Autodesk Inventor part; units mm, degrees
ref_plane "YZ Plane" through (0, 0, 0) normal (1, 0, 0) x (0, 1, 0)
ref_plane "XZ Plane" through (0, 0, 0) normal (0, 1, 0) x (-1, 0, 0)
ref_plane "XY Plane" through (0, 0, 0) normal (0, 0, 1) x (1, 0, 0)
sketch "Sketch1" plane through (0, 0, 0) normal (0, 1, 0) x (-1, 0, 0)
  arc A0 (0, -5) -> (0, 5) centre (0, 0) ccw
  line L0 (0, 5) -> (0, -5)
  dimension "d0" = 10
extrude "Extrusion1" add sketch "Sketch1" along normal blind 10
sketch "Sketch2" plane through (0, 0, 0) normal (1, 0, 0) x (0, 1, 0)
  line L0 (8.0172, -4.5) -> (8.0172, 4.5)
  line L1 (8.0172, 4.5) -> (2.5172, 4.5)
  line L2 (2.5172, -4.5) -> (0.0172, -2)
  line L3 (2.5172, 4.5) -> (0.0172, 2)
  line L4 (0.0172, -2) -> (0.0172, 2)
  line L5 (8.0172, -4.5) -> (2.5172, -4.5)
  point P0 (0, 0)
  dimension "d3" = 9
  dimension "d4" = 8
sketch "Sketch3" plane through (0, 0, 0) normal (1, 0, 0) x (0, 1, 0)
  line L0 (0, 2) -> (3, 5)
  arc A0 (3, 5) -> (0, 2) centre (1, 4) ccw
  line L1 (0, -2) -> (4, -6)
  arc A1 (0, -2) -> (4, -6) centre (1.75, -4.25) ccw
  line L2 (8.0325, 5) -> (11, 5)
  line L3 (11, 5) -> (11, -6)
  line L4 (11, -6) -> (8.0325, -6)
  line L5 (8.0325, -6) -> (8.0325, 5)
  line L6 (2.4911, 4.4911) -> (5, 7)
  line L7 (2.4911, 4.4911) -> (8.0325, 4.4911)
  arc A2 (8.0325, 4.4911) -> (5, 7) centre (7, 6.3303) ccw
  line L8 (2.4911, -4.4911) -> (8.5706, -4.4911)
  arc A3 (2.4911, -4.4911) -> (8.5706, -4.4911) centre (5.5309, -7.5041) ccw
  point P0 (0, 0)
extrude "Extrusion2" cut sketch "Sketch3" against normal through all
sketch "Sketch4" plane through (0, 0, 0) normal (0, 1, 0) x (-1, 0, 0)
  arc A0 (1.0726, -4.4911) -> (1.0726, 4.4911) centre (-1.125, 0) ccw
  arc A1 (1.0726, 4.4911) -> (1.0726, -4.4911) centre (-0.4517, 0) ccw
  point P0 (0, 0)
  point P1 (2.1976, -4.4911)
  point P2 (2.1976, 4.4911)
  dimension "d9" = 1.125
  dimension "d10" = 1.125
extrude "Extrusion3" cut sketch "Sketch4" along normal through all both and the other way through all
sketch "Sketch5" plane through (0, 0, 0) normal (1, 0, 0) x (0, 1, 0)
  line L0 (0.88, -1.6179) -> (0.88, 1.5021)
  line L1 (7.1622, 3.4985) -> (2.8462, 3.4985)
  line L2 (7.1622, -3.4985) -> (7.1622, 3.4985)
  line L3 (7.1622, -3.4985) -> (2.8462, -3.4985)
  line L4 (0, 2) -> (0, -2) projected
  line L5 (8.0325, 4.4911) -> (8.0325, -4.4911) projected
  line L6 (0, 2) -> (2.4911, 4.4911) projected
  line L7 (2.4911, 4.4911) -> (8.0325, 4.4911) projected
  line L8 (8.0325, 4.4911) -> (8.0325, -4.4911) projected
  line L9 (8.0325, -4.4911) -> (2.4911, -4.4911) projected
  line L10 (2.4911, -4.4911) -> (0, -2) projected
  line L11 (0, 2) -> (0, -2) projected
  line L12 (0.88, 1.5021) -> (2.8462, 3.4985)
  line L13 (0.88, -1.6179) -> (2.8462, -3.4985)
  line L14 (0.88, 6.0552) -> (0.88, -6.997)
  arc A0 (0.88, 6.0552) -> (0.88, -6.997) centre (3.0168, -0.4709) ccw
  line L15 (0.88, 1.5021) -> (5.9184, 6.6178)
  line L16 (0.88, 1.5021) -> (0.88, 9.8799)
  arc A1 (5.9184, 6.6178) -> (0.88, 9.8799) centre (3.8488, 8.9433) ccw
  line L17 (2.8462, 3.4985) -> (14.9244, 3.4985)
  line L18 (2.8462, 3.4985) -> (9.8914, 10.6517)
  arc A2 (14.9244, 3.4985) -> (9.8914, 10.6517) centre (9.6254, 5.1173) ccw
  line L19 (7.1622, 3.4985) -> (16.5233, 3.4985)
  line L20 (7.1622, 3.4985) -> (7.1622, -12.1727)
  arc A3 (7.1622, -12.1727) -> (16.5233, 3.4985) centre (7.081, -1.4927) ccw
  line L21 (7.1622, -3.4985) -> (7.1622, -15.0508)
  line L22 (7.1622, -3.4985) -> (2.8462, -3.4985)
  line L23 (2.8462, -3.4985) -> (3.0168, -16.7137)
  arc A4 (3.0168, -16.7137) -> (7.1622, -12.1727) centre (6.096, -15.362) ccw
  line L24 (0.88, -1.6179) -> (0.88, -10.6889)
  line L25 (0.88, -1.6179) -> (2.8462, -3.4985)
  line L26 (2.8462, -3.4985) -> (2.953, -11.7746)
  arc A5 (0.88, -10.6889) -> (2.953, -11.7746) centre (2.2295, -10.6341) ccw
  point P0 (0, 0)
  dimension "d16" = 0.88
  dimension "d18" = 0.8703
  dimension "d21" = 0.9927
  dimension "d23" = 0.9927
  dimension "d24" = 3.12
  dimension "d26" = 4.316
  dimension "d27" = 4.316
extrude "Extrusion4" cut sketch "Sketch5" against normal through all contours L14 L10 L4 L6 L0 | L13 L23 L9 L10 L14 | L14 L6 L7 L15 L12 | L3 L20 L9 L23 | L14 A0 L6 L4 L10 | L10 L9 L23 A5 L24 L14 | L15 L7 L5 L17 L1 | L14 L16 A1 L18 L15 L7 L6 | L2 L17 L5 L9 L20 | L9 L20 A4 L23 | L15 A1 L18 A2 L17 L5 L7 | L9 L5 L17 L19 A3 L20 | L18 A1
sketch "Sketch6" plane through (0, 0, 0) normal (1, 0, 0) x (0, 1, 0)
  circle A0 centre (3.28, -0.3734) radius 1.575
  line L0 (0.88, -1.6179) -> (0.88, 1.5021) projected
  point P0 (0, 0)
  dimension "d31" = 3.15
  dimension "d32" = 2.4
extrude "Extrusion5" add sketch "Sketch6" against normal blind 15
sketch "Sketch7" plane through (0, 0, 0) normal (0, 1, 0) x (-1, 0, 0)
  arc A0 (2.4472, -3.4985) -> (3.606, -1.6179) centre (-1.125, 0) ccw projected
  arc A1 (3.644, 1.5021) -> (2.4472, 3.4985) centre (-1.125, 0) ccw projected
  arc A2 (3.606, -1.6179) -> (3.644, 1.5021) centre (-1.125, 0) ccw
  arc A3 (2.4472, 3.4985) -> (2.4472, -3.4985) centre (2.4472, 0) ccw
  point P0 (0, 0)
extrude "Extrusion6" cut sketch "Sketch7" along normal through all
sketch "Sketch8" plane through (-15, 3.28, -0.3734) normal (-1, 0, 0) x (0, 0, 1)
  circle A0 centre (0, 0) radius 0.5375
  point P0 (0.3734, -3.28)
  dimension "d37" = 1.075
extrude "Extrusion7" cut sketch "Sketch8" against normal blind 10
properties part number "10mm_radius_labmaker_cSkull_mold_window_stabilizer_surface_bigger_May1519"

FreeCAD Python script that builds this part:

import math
import FreeCAD as App
import Part
import Sketcher

V = App.Vector
Q = App.Units.Quantity


def add_polygon(sketch, points):
    """Adds a closed chain of lines whose ends are joined by coincident constraints."""
    first, n = sketch.GeometryCount, len(points)
    for a, b in zip(points, points[1:] + points[:1]):
        sketch.addGeometry(Part.LineSegment(App.Vector(*a, 0), App.Vector(*b, 0)), False)
    for i in range(n):
        sketch.addConstraint(Sketcher.Constraint("Coincident", first + i, 2, first + (i + 1) % n, 1))

doc = App.newDocument("Part")
params = doc.addObject("Spreadsheet::Sheet", "Params")
for row, (alias, value) in enumerate([
    ("sketch1_radius", "5 mm"),
    ("pad1_length", "10 mm"),
    ("sketch2_height", "11 mm"),
    ("sketch2_radius", "4.28 mm"),
    ("sketch3_radius", "5 mm"),
    ("sketch4_height", "3.12 mm"),
    ("sketch5_diameter", "3.15 mm"),
    ("pad2_length", "15 mm"),
    ("sketch6_radius", "5 mm"),
    ("pocket5_length", "10 mm"),
], start=1):
    params.set(f"A{row}", alias)
    params.set(f"B{row}", "=" + value)
    params.setAlias(f"B{row}", alias)

body = doc.addObject("PartDesign::Body", "Body")

sketch1 = body.newObject("Sketcher::SketchObject", "Sketch")
sketch1.AttachmentSupport = (doc.getObject("XZ_Plane"), [""])
sketch1.MapMode = "FlatFace"
sketch1.addGeometry(Part.LineSegment(V(0, 5, 0), V(0, -5, 0)), False)
sketch1.addGeometry(Part.ArcOfCircle(Part.Circle(V(0, 0, 0), V(0, 0, 1), 5), math.radians(90), math.radians(270)), False)
sketch1.addConstraint(Sketcher.Constraint("Coincident", 0, 1, 1, 1))
sketch1.addConstraint(Sketcher.Constraint("Coincident", 1, 2, 0, 2))
sketch1.addConstraint(Sketcher.Constraint("Vertical", 0))
sketch1.addConstraint(Sketcher.Constraint("Coincident", 1, 3, -1, 1))
sketch1.addConstraint(Sketcher.Constraint("PointOnObject", 0, 1, -2))
sketch1.addConstraint(Sketcher.Constraint("Radius", 1, Q("5 mm")))
sketch1.setExpression("Constraints[5]", "Params.sketch1_radius")
pad1 = body.newObject("PartDesign::Pad", "Pad")
pad1.Profile = sketch1
pad1.setExpression("Length", "Params.pad1_length")
pad1.Reversed = True

sketch2 = body.newObject("Sketcher::SketchObject", "Sketch001")
sketch2.AttachmentSupport = (doc.getObject("YZ_Plane"), [""])
sketch2.MapMode = "FlatFace"
sketch2.addGeometry(Part.ArcOfCircle(Part.Circle(V(1, 4, 0), V(0, 0, 1), 2.2), math.radians(27), math.radians(243)), False)
sketch2.addGeometry(Part.LineSegment(V(0, 2, 0), V(2.5, 4.5, 0)), False)
sketch2.addGeometry(Part.LineSegment(V(2.5, 4.5, 0), V(8, 4.5, 0)), False)
sketch2.addGeometry(Part.LineSegment(V(8, 4.5, 0), V(8, -4.5, 0)), False)
sketch2.addGeometry(Part.LineSegment(V(8, -4.5, 0), V(2.5, -4.5, 0)), False)
sketch2.addGeometry(Part.LineSegment(V(2.5, -4.5, 0), V(0, -2, 0)), False)
sketch2.addGeometry(Part.ArcOfCircle(Part.Circle(V(1.8, -4.2, 0), V(0, 0, 1), 2.9), math.radians(128), math.radians(260)), False)
sketch2.addGeometry(Part.ArcOfCircle(Part.Circle(V(5.5, -7.5, 0), V(0, 0, 1), 4.3), math.radians(174), math.radians(381)), False)
sketch2.addGeometry(Part.LineSegment(V(9.5, -6, 0), V(11, -6, 0)), False)
sketch2.addGeometry(Part.LineSegment(V(11, -6, 0), V(11, 5, 0)), False)
sketch2.addGeometry(Part.LineSegment(V(11, 5, 0), V(8.6, 5, 0)), False)
sketch2.addGeometry(Part.ArcOfCircle(Part.Circle(V(7, 6.3, 0), V(0, 0, 1), 2.1), math.radians(-39), math.radians(161)), False)
sketch2.addGeometry(Part.LineSegment(V(5, 7, 0), V(3, 5, 0)), False)
sketch2.addConstraint(Sketcher.Constraint("Coincident", 0, 2, 1, 1))
sketch2.addConstraint(Sketcher.Constraint("Coincident", 1, 2, 2, 1))
sketch2.addConstraint(Sketcher.Constraint("Coincident", 2, 2, 3, 1))
sketch2.addConstraint(Sketcher.Constraint("Coincident", 3, 2, 4, 1))
sketch2.addConstraint(Sketcher.Constraint("Coincident", 4, 2, 5, 1))
sketch2.addConstraint(Sketcher.Constraint("Coincident", 5, 2, 6, 1))
sketch2.addConstraint(Sketcher.Constraint("Coincident", 6, 2, 7, 1))
sketch2.addConstraint(Sketcher.Constraint("Coincident", 7, 2, 8, 1))
sketch2.addConstraint(Sketcher.Constraint("Coincident", 8, 2, 9, 1))
sketch2.addConstraint(Sketcher.Constraint("Coincident", 9, 2, 10, 1))
sketch2.addConstraint(Sketcher.Constraint("Coincident", 10, 2, 11, 1))
sketch2.addConstraint(Sketcher.Constraint("Coincident", 11, 2, 12, 1))
sketch2.addConstraint(Sketcher.Constraint("Coincident", 12, 2, 0, 1))
sketch2.addConstraint(Sketcher.Constraint("Horizontal", 2))
sketch2.addConstraint(Sketcher.Constraint("Vertical", 3))
sketch2.addConstraint(Sketcher.Constraint("Horizontal", 4))
sketch2.addConstraint(Sketcher.Constraint("Horizontal", 8))
sketch2.addConstraint(Sketcher.Constraint("Vertical", 9))
sketch2.addConstraint(Sketcher.Constraint("Horizontal", 10))
sketch2.addConstraint(Sketcher.Constraint("Symmetric", 0, 2, 5, 2, -1, 1))
sketch2.addConstraint(Sketcher.Constraint("Symmetric", 1, 2, 4, 2, -1))
sketch2.addConstraint(Sketcher.Constraint("PointOnObject", 0, 2, -2))
sketch2.addConstraint(Sketcher.Constraint("Perpendicular", 1, 5))
sketch2.addConstraint(Sketcher.Constraint("Perpendicular", 5, 12))
sketch2.addConstraint(Sketcher.Constraint("Horizontal", 10, 2, 12, 2))
sketch2.addConstraint(Sketcher.Constraint("DistanceY", 9, 1, 9, 2, Q("11 mm")))
sketch2.addConstraint(Sketcher.Constraint("Radius", 7, Q("4.28 mm")))
sketch2.addConstraint(Sketcher.Constraint("DistanceX", -1, 1, 0, 3, Q("1 mm")))
sketch2.addConstraint(Sketcher.Constraint("DistanceY", -1, 1, 0, 3, Q("4 mm")))
sketch2.addConstraint(Sketcher.Constraint("DistanceX", -1, 1, 11, 3, Q("7 mm")))
sketch2.addConstraint(Sketcher.Constraint("DistanceY", -1, 1, 0, 2, Q("2 mm")))
sketch2.addConstraint(Sketcher.Constraint("DistanceY", 7, 2, -1, 1, Q("6 mm")))
sketch2.addConstraint(Sketcher.Constraint("DistanceX", -1, 1, 8, 2, Q("11 mm")))
sketch2.addConstraint(Sketcher.Constraint("DistanceX", -1, 1, 11, 2, Q("5 mm")))
sketch2.addConstraint(Sketcher.Constraint("Radius", 6, Q("2.8504 mm")))
sketch2.addConstraint(Sketcher.Constraint("Radius", 11, Q("2.1092 mm")))
sketch2.addConstraint(Sketcher.Constraint("DistanceX", -1, 1, 6, 3, Q("1.75 mm")))
sketch2.addConstraint(Sketcher.Constraint("Distance", 1, Q("3.523 mm")))
sketch2.addConstraint(Sketcher.Constraint("DistanceX", 2, 1, 2, 2, Q("5.5414 mm")))
sketch2.addConstraint(Sketcher.Constraint("DistanceX", 8, 1, 8, 2, Q("1.4622 mm")))
sketch2.addConstraint(Sketcher.Constraint("DistanceX", -1, 1, 7, 3, Q("5.531 mm")))
sketch2.setExpression("Constraints[25]", "Params.sketch2_height")
sketch2.setExpression("Constraints[26]", "Params.sketch2_radius")
pocket1 = body.newObject("PartDesign::Pocket", "Pocket")
pocket1.Profile = sketch2
pocket1.Type = "ThroughAll"

sketch3 = body.newObject("Sketcher::SketchObject", "Sketch002")
sketch3.AttachmentSupport = (doc.getObject("XZ_Plane"), [""])
sketch3.MapMode = "FlatFace"
sketch3.addGeometry(Part.ArcOfCircle(Part.Circle(V(0.5, 0, 0), V(0, 0, 1), 4.7), math.radians(-109), math.radians(109)), False)
sketch3.addGeometry(Part.ArcOfCircle(Part.Circle(V(1.1, 0, 0), V(0, 0, 1), 5), math.radians(116), math.radians(244)), False)
sketch3.addConstraint(Sketcher.Constraint("Coincident", 0, 1, 1, 2))
sketch3.addConstraint(Sketcher.Constraint("Coincident", 1, 1, 0, 2))
sketch3.addConstraint(Sketcher.Constraint("Symmetric", 0, 1, 1, 1, -1))
sketch3.addConstraint(Sketcher.Constraint("Radius", 1, Q("5 mm")))
sketch3.addConstraint(Sketcher.Constraint("DistanceX", -1, 1, 1, 3, Q("1.125 mm")))
sketch3.addConstraint(Sketcher.Constraint("Radius", 0, Q("4.7427 mm")))
sketch3.addConstraint(Sketcher.Constraint("DistanceY", 0, 1, -1, 1, Q("4.491 mm")))
sketch3.setExpression("Constraints[3]", "Params.sketch3_radius")
pocket2 = body.newObject("PartDesign::Pocket", "Pocket001")
pocket2.Profile = sketch3
pocket2.Type = "ThroughAll"

sketch4 = body.newObject("Sketcher::SketchObject", "Sketch003")
sketch4.AttachmentSupport = (doc.getObject("YZ_Plane"), [""])
sketch4.MapMode = "FlatFace"
sketch4.addGeometry(Part.ArcOfCircle(Part.Circle(V(3, -0.5, 0), V(0, 0, 1), 6.9), math.radians(108), math.radians(252)), False)
sketch4.addGeometry(Part.LineSegment(V(0.9, -7, 0), V(0.9, -10.7, 0)), False)
sketch4.addGeometry(Part.ArcOfCircle(Part.Circle(V(2.2, -10.6, 0), V(0, 0, 1), 1.4), math.radians(-178), math.radians(-58)), False)
sketch4.addGeometry(Part.LineSegment(V(3, -11.8, 0), V(3, -16.7, 0)), False)
sketch4.addGeometry(Part.ArcOfCircle(Part.Circle(V(6.1, -15.4, 0), V(0, 0, 1), 3.4), math.radians(-156), math.radians(72)), False)
sketch4.addGeometry(Part.ArcOfCircle(Part.Circle(V(7.1, -1.5, 0), V(0, 0, 1), 10.7), math.radians(-90), math.radians(28)), False)
sketch4.addGeometry(Part.LineSegment(V(16.5, 3.5, 0), V(14.9, 3.5, 0)), False)
sketch4.addGeometry(Part.ArcOfCircle(Part.Circle(V(9.6, 5.1, 0), V(0, 0, 1), 5.5), math.radians(-17), math.radians(87)), False)
sketch4.addGeometry(Part.LineSegment(V(9.9, 10.7, 0), V(6.2, 6.9, 0)), False)
sketch4.addGeometry(Part.ArcOfCircle(Part.Circle(V(3.8, 8.9, 0), V(0, 0, 1), 3.1), math.radians(-41), math.radians(162)), False)
sketch4.addGeometry(Part.LineSegment(V(0.9, 9.9, 0), V(0.9, 6.1, 0)), False)
add_polygon(sketch4, [(0.9, -1.6), (0.9, 1.5), (2.8, 3.5), (7.2, 3.5), (7.2, -3.5), (2.8, -3.5)])
sketch4.addConstraint(Sketcher.Constraint("Coincident", 0, 2, 1, 1))
sketch4.addConstraint(Sketcher.Constraint("Coincident", 1, 2, 2, 1))
sketch4.addConstraint(Sketcher.Constraint("Coincident", 2, 2, 3, 1))
sketch4.addConstraint(Sketcher.Constraint("Coincident", 3, 2, 4, 1))
sketch4.addConstraint(Sketcher.Constraint("Coincident", 4, 2, 5, 1))
sketch4.addConstraint(Sketcher.Constraint("Coincident", 5, 2, 6, 1))
sketch4.addConstraint(Sketcher.Constraint("Coincident", 6, 2, 7, 1))
sketch4.addConstraint(Sketcher.Constraint("Coincident", 7, 2, 8, 1))
sketch4.addConstraint(Sketcher.Constraint("Coincident", 8, 2, 9, 1))
sketch4.addConstraint(Sketcher.Constraint("Coincident", 9, 2, 10, 1))
sketch4.addConstraint(Sketcher.Constraint("Coincident", 10, 2, 0, 1))
sketch4.addConstraint(Sketcher.Constraint("Vertical", 1))
sketch4.addConstraint(Sketcher.Constraint("Horizontal", 6))
sketch4.addConstraint(Sketcher.Constraint("Vertical", 10))
sketch4.addConstraint(Sketcher.Constraint("Vertical", 11))
sketch4.addConstraint(Sketcher.Constraint("Horizontal", 13))
sketch4.addConstraint(Sketcher.Constraint("Vertical", 14))
sketch4.addConstraint(Sketcher.Constraint("Horizontal", 15))
sketch4.addConstraint(Sketcher.Constraint("Symmetric", 12, 2, 15, 2, -1))
sketch4.addConstraint(Sketcher.Constraint("Parallel", 8, 12))
sketch4.addConstraint(Sketcher.Constraint("Horizontal", 6, 2, 12, 2))
sketch4.addConstraint(Sketcher.Constraint("Vertical", 0, 3, 3, 2))
sketch4.addConstraint(Sketcher.Constraint("Vertical", 1, 2, 9, 2))
sketch4.addConstraint(Sketcher.Constraint("Vertical", 10, 2, 11, 2))
sketch4.addConstraint(Sketcher.Constraint("Vertical", 4, 2, 13, 2))
sketch4.addConstraint(Sketcher.Constraint("DistanceY", 11, 1, 11, 2, Q("3.12 mm")))
sketch4.addConstraint(Sketcher.Constraint("DistanceX", 13, 1, 13, 2, Q("4.316 mm")))
sketch4.addConstraint(Sketcher.Constraint("DistanceX", -1, 1, 0, 2, Q("0.88 mm")))
sketch4.addConstraint(Sketcher.Constraint("Radius", 0, Q("6.867 mm")))
sketch4.addConstraint(Sketcher.Constraint("Radius", 9, Q("3.113 mm")))
sketch4.addConstraint(Sketcher.Constraint("Angle", 3, Q("-89.2604 deg")))
sketch4.addConstraint(Sketcher.Constraint("Radius", 2, Q("1.3506 mm")))
sketch4.addConstraint(Sketcher.Constraint("Radius", 4, Q("3.3628 mm")))
sketch4.addConstraint(Sketcher.Constraint("Radius", 5, Q("10.6803 mm")))
sketch4.addConstraint(Sketcher.Constraint("Radius", 7, Q("5.5408 mm")))
sketch4.addConstraint(Sketcher.Constraint("DistanceX", 6, 2, 6, 1, Q("1.599 mm")))
sketch4.addConstraint(Sketcher.Constraint("DistanceY", 1, 2, 1, 1, Q("3.692 mm")))
sketch4.addConstraint(Sketcher.Constraint("DistanceY", 14, 2, 14, 1, Q("6.997 mm")))
sketch4.addConstraint(Sketcher.Constraint("DistanceY", -1, 1, 9, 2, Q("9.88 mm")))
sketch4.addConstraint(Sketcher.Constraint("DistanceY", 5, 3, 7, 3, Q("6.61 mm")))
sketch4.addConstraint(Sketcher.Constraint("DistanceX", 8, 2, 7, 3, Q("3.42 mm")))
sketch4.addConstraint(Sketcher.Constraint("Distance", 12, Q("2.802 mm")))
sketch4.addConstraint(Sketcher.Constraint("DistanceY", 10, 2, 10, 1, Q("3.8247 mm")))
sketch4.addConstraint(Sketcher.Constraint("DistanceY", 0, 3, -1, 1, Q("0.471 mm")))
sketch4.addConstraint(Sketcher.Constraint("DistanceY", 2, 3, -1, 1, Q("10.634 mm")))
sketch4.addConstraint(Sketcher.Constraint("DistanceX", -1, 1, 4, 3, Q("6.096 mm")))
sketch4.addConstraint(Sketcher.Constraint("DistanceY", 4, 3, -1, 1, Q("15.362 mm")))
sketch4.addConstraint(Sketcher.Constraint("DistanceX", -1, 1, 5, 3, Q("7.081 mm")))
sketch4.addConstraint(Sketcher.Constraint("DistanceY", -1, 1, 11, 2, Q("1.502 mm")))
sketch4.addConstraint(Sketcher.Constraint("DistanceY", 7, 3, 9, 3, Q("3.826 mm")))
sketch4.setExpression("Constraints[31]", "Params.sketch4_height")
pocket3 = body.newObject("PartDesign::Pocket", "Pocket002")
pocket3.Profile = sketch4
pocket3.Type = "ThroughAll"

sketch5 = body.newObject("Sketcher::SketchObject", "Sketch004")
sketch5.AttachmentSupport = (doc.getObject("YZ_Plane"), [""])
sketch5.MapMode = "FlatFace"
sketch5.addGeometry(Part.Circle(V(3.3, -0.4, 0), V(0, 0, 1), 1.6), False)
sketch5.addConstraint(Sketcher.Constraint("Diameter", 0, Q("3.15 mm")))
sketch5.addConstraint(Sketcher.Constraint("DistanceX", -1, 1, 0, 3, Q("3.28 mm")))
sketch5.addConstraint(Sketcher.Constraint("DistanceY", 0, 3, -1, 1, Q("0.3734 mm")))
sketch5.setExpression("Constraints[0]", "Params.sketch5_diameter")
pad2 = body.newObject("PartDesign::Pad", "Pad001")
pad2.Profile = sketch5
pad2.setExpression("Length", "Params.pad2_length")
pad2.Reversed = True

sketch6 = body.newObject("Sketcher::SketchObject", "Sketch005")
sketch6.AttachmentSupport = (doc.getObject("XZ_Plane"), [""])
sketch6.MapMode = "FlatFace"
sketch6.addGeometry(Part.ArcOfCircle(Part.Circle(V(-2.4, 0, 0), V(0, 0, 1), 3.5), math.radians(-90), math.radians(90)), False)
sketch6.addGeometry(Part.ArcOfCircle(Part.Circle(V(1.1, 0, 0), V(0, 0, 1), 5), math.radians(-161), math.radians(-136)), False)
sketch6.addGeometry(Part.ArcOfCircle(Part.Circle(V(1.1, 0, 0), V(0, 0, 1), 5), math.radians(163), math.radians(199)), False)
sketch6.addGeometry(Part.ArcOfCircle(Part.Circle(V(1.1, 0, 0), V(0, 0, 1), 5), math.radians(136), math.radians(163)), False)
sketch6.addConstraint(Sketcher.Constraint("Coincident", 0, 1, 1, 2))
sketch6.addConstraint(Sketcher.Constraint("Tangent", 1, 1, 2, 2))
sketch6.addConstraint(Sketcher.Constraint("Tangent", 2, 1, 3, 2))
sketch6.addConstraint(Sketcher.Constraint("Coincident", 3, 1, 0, 2))
sketch6.addConstraint(Sketcher.Constraint("Coincident", 3, 3, 1, 3))
sketch6.addConstraint(Sketcher.Constraint("Symmetric", 0, 1, 3, 1, -1))
sketch6.addConstraint(Sketcher.Constraint("Radius", 1, Q("5 mm")))
sketch6.addConstraint(Sketcher.Constraint("Radius", 0, Q("3.4985 mm")))
sketch6.addConstraint(Sketcher.Constraint("DistanceY", 1, 1, 2, 1, Q("3.12 mm")))
sketch6.addConstraint(Sketcher.Constraint("DistanceX", -1, 1, 1, 3, Q("1.125 mm")))
sketch6.addConstraint(Sketcher.Constraint("DistanceX", 1, 1, -1, 1, Q("3.606 mm")))
sketch6.addConstraint(Sketcher.Constraint("DistanceX", 0, 3, -1, 1, Q("2.4472 mm")))
sketch6.setExpression("Constraints[6]", "Params.sketch6_radius")
pocket4 = body.newObject("PartDesign::Pocket", "Pocket003")
pocket4.Profile = sketch6
pocket4.Type = "ThroughAll"

sketch7 = body.newObject("Sketcher::SketchObject", "Sketch006")
sketch7.AttachmentSupport = (doc.getObject("YZ_Plane"), [""])
sketch7.MapMode = "FlatFace"
sketch7.AttachmentOffset = App.Placement(V(0, 0, -15), App.Rotation())
sketch7.addGeometry(Part.Circle(V(3.3, -0.4, 0), V(0, 0, 1), 0.5), False)
sketch7.addConstraint(Sketcher.Constraint("Diameter", 0, Q("1.075 mm")))
sketch7.addConstraint(Sketcher.Constraint("DistanceX", -1, 1, 0, 3, Q("3.28 mm")))
sketch7.addConstraint(Sketcher.Constraint("DistanceY", 0, 3, -1, 1, Q("0.3734 mm")))
pocket5 = body.newObject("PartDesign::Pocket", "Pocket004")
pocket5.Profile = sketch7
pocket5.setExpression("Length", "Params.pocket5_length")
pocket5.Reversed = True

doc.recompute()
